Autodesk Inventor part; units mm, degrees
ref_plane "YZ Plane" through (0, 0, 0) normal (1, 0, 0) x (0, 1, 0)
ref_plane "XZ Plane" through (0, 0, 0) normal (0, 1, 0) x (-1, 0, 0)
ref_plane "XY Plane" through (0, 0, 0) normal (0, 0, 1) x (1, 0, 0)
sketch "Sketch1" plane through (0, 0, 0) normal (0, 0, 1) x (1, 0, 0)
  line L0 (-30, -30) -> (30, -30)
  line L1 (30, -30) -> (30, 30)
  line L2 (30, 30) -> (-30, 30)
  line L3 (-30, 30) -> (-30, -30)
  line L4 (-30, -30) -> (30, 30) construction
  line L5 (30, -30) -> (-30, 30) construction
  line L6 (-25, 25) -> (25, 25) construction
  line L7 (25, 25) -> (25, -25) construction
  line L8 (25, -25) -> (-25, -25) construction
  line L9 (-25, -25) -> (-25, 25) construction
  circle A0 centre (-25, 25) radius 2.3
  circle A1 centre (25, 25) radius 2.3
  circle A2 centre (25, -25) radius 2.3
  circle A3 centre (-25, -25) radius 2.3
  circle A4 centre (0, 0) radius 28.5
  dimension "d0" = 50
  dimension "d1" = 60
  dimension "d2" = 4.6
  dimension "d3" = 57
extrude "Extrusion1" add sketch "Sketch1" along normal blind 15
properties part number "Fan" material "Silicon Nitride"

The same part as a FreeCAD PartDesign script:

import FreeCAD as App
import Part
import Sketcher
Q = App.Units.Quantity


def add_polygon(sketch, points):
    """Adds a closed chain of lines whose ends are joined by coincident constraints."""
    first, n = sketch.GeometryCount, len(points)
    for a, b in zip(points, points[1:] + points[:1]):
        sketch.addGeometry(Part.LineSegment(App.Vector(*a, 0), App.Vector(*b, 0)), False)
    for i in range(n):
        sketch.addConstraint(Sketcher.Constraint("Coincident", first + i, 2, first + (i + 1) % n, 1))

doc = App.newDocument("Part")
body = doc.addObject("PartDesign::Body", "Body")

# Sketch on XY plane
sketch1 = body.newObject("Sketcher::SketchObject", "Sketch")
sketch1.AttachmentSupport = (doc.getObject("XY_Plane"), [""])
sketch1.MapMode = "FlatFace"
add_polygon(sketch1, [(-30, 30), (-30, -30), (30, -30), (30, 30)])  # lines 0-3
sketch1.addGeometry(Part.Circle(App.Vector(-25, -25, 0), App.Vector(0, 0, 1), 2.3), False)  # 4
sketch1.addGeometry(Part.Circle(App.Vector(25, -25, 0), App.Vector(0, 0, 1), 2.3), False)  # 5
sketch1.addGeometry(Part.Circle(App.Vector(-25, 25, 0), App.Vector(0, 0, 1), 2.3), False)  # 6
sketch1.addGeometry(Part.Circle(App.Vector(0, 0, 0), App.Vector(0, 0, 1), 28.5), False)  # 7
sketch1.addGeometry(Part.Circle(App.Vector(25, 25, 0), App.Vector(0, 0, 1), 2.3), False)  # 8
sketch1.addConstraint(Sketcher.Constraint("Vertical", 0))
sketch1.addConstraint(Sketcher.Constraint("Horizontal", 1))
sketch1.addConstraint(Sketcher.Constraint("Vertical", 2))
sketch1.addConstraint(Sketcher.Constraint("Horizontal", 3))
sketch1.addConstraint(Sketcher.Constraint("Coincident", 7, 3, -1, 1))
sketch1.addConstraint(Sketcher.Constraint("Equal", 4, 5))
sketch1.addConstraint(Sketcher.Constraint("Equal", 5, 6))
sketch1.addConstraint(Sketcher.Constraint("Equal", 6, 8))
sketch1.addConstraint(Sketcher.Constraint("Symmetric", 5, 3, 6, 3, -1, 1))
sketch1.addConstraint(Sketcher.Constraint("Symmetric", 4, 3, 8, 3, -1, 1))
sketch1.addConstraint(Sketcher.Constraint("Symmetric", 0, 2, 2, 2, -1, 1))
sketch1.addConstraint(Sketcher.Constraint("Symmetric", 4, 3, 5, 3, -2))
sketch1.addConstraint(Sketcher.Constraint("Equal", 3, 0))
sketch1.addConstraint(Sketcher.Constraint("Diameter", 7, Q("57 mm")))
sketch1.addConstraint(Sketcher.Constraint("Diameter", 4, Q("4.6 mm")))
sketch1.addConstraint(Sketcher.Constraint("DistanceX", 1, 1, 1, 2, Q("60 mm")))
sketch1.addConstraint(Sketcher.Constraint("DistanceX", 4, 3, 5, 3, Q("50 mm")))
sketch1.addConstraint(Sketcher.Constraint("DistanceY", 4, 3, 6, 3, Q("50 mm")))
pad1 = body.newObject("PartDesign::Pad", "Pad")
pad1.Profile = sketch1
pad1.Length = 15

doc.recompute()
